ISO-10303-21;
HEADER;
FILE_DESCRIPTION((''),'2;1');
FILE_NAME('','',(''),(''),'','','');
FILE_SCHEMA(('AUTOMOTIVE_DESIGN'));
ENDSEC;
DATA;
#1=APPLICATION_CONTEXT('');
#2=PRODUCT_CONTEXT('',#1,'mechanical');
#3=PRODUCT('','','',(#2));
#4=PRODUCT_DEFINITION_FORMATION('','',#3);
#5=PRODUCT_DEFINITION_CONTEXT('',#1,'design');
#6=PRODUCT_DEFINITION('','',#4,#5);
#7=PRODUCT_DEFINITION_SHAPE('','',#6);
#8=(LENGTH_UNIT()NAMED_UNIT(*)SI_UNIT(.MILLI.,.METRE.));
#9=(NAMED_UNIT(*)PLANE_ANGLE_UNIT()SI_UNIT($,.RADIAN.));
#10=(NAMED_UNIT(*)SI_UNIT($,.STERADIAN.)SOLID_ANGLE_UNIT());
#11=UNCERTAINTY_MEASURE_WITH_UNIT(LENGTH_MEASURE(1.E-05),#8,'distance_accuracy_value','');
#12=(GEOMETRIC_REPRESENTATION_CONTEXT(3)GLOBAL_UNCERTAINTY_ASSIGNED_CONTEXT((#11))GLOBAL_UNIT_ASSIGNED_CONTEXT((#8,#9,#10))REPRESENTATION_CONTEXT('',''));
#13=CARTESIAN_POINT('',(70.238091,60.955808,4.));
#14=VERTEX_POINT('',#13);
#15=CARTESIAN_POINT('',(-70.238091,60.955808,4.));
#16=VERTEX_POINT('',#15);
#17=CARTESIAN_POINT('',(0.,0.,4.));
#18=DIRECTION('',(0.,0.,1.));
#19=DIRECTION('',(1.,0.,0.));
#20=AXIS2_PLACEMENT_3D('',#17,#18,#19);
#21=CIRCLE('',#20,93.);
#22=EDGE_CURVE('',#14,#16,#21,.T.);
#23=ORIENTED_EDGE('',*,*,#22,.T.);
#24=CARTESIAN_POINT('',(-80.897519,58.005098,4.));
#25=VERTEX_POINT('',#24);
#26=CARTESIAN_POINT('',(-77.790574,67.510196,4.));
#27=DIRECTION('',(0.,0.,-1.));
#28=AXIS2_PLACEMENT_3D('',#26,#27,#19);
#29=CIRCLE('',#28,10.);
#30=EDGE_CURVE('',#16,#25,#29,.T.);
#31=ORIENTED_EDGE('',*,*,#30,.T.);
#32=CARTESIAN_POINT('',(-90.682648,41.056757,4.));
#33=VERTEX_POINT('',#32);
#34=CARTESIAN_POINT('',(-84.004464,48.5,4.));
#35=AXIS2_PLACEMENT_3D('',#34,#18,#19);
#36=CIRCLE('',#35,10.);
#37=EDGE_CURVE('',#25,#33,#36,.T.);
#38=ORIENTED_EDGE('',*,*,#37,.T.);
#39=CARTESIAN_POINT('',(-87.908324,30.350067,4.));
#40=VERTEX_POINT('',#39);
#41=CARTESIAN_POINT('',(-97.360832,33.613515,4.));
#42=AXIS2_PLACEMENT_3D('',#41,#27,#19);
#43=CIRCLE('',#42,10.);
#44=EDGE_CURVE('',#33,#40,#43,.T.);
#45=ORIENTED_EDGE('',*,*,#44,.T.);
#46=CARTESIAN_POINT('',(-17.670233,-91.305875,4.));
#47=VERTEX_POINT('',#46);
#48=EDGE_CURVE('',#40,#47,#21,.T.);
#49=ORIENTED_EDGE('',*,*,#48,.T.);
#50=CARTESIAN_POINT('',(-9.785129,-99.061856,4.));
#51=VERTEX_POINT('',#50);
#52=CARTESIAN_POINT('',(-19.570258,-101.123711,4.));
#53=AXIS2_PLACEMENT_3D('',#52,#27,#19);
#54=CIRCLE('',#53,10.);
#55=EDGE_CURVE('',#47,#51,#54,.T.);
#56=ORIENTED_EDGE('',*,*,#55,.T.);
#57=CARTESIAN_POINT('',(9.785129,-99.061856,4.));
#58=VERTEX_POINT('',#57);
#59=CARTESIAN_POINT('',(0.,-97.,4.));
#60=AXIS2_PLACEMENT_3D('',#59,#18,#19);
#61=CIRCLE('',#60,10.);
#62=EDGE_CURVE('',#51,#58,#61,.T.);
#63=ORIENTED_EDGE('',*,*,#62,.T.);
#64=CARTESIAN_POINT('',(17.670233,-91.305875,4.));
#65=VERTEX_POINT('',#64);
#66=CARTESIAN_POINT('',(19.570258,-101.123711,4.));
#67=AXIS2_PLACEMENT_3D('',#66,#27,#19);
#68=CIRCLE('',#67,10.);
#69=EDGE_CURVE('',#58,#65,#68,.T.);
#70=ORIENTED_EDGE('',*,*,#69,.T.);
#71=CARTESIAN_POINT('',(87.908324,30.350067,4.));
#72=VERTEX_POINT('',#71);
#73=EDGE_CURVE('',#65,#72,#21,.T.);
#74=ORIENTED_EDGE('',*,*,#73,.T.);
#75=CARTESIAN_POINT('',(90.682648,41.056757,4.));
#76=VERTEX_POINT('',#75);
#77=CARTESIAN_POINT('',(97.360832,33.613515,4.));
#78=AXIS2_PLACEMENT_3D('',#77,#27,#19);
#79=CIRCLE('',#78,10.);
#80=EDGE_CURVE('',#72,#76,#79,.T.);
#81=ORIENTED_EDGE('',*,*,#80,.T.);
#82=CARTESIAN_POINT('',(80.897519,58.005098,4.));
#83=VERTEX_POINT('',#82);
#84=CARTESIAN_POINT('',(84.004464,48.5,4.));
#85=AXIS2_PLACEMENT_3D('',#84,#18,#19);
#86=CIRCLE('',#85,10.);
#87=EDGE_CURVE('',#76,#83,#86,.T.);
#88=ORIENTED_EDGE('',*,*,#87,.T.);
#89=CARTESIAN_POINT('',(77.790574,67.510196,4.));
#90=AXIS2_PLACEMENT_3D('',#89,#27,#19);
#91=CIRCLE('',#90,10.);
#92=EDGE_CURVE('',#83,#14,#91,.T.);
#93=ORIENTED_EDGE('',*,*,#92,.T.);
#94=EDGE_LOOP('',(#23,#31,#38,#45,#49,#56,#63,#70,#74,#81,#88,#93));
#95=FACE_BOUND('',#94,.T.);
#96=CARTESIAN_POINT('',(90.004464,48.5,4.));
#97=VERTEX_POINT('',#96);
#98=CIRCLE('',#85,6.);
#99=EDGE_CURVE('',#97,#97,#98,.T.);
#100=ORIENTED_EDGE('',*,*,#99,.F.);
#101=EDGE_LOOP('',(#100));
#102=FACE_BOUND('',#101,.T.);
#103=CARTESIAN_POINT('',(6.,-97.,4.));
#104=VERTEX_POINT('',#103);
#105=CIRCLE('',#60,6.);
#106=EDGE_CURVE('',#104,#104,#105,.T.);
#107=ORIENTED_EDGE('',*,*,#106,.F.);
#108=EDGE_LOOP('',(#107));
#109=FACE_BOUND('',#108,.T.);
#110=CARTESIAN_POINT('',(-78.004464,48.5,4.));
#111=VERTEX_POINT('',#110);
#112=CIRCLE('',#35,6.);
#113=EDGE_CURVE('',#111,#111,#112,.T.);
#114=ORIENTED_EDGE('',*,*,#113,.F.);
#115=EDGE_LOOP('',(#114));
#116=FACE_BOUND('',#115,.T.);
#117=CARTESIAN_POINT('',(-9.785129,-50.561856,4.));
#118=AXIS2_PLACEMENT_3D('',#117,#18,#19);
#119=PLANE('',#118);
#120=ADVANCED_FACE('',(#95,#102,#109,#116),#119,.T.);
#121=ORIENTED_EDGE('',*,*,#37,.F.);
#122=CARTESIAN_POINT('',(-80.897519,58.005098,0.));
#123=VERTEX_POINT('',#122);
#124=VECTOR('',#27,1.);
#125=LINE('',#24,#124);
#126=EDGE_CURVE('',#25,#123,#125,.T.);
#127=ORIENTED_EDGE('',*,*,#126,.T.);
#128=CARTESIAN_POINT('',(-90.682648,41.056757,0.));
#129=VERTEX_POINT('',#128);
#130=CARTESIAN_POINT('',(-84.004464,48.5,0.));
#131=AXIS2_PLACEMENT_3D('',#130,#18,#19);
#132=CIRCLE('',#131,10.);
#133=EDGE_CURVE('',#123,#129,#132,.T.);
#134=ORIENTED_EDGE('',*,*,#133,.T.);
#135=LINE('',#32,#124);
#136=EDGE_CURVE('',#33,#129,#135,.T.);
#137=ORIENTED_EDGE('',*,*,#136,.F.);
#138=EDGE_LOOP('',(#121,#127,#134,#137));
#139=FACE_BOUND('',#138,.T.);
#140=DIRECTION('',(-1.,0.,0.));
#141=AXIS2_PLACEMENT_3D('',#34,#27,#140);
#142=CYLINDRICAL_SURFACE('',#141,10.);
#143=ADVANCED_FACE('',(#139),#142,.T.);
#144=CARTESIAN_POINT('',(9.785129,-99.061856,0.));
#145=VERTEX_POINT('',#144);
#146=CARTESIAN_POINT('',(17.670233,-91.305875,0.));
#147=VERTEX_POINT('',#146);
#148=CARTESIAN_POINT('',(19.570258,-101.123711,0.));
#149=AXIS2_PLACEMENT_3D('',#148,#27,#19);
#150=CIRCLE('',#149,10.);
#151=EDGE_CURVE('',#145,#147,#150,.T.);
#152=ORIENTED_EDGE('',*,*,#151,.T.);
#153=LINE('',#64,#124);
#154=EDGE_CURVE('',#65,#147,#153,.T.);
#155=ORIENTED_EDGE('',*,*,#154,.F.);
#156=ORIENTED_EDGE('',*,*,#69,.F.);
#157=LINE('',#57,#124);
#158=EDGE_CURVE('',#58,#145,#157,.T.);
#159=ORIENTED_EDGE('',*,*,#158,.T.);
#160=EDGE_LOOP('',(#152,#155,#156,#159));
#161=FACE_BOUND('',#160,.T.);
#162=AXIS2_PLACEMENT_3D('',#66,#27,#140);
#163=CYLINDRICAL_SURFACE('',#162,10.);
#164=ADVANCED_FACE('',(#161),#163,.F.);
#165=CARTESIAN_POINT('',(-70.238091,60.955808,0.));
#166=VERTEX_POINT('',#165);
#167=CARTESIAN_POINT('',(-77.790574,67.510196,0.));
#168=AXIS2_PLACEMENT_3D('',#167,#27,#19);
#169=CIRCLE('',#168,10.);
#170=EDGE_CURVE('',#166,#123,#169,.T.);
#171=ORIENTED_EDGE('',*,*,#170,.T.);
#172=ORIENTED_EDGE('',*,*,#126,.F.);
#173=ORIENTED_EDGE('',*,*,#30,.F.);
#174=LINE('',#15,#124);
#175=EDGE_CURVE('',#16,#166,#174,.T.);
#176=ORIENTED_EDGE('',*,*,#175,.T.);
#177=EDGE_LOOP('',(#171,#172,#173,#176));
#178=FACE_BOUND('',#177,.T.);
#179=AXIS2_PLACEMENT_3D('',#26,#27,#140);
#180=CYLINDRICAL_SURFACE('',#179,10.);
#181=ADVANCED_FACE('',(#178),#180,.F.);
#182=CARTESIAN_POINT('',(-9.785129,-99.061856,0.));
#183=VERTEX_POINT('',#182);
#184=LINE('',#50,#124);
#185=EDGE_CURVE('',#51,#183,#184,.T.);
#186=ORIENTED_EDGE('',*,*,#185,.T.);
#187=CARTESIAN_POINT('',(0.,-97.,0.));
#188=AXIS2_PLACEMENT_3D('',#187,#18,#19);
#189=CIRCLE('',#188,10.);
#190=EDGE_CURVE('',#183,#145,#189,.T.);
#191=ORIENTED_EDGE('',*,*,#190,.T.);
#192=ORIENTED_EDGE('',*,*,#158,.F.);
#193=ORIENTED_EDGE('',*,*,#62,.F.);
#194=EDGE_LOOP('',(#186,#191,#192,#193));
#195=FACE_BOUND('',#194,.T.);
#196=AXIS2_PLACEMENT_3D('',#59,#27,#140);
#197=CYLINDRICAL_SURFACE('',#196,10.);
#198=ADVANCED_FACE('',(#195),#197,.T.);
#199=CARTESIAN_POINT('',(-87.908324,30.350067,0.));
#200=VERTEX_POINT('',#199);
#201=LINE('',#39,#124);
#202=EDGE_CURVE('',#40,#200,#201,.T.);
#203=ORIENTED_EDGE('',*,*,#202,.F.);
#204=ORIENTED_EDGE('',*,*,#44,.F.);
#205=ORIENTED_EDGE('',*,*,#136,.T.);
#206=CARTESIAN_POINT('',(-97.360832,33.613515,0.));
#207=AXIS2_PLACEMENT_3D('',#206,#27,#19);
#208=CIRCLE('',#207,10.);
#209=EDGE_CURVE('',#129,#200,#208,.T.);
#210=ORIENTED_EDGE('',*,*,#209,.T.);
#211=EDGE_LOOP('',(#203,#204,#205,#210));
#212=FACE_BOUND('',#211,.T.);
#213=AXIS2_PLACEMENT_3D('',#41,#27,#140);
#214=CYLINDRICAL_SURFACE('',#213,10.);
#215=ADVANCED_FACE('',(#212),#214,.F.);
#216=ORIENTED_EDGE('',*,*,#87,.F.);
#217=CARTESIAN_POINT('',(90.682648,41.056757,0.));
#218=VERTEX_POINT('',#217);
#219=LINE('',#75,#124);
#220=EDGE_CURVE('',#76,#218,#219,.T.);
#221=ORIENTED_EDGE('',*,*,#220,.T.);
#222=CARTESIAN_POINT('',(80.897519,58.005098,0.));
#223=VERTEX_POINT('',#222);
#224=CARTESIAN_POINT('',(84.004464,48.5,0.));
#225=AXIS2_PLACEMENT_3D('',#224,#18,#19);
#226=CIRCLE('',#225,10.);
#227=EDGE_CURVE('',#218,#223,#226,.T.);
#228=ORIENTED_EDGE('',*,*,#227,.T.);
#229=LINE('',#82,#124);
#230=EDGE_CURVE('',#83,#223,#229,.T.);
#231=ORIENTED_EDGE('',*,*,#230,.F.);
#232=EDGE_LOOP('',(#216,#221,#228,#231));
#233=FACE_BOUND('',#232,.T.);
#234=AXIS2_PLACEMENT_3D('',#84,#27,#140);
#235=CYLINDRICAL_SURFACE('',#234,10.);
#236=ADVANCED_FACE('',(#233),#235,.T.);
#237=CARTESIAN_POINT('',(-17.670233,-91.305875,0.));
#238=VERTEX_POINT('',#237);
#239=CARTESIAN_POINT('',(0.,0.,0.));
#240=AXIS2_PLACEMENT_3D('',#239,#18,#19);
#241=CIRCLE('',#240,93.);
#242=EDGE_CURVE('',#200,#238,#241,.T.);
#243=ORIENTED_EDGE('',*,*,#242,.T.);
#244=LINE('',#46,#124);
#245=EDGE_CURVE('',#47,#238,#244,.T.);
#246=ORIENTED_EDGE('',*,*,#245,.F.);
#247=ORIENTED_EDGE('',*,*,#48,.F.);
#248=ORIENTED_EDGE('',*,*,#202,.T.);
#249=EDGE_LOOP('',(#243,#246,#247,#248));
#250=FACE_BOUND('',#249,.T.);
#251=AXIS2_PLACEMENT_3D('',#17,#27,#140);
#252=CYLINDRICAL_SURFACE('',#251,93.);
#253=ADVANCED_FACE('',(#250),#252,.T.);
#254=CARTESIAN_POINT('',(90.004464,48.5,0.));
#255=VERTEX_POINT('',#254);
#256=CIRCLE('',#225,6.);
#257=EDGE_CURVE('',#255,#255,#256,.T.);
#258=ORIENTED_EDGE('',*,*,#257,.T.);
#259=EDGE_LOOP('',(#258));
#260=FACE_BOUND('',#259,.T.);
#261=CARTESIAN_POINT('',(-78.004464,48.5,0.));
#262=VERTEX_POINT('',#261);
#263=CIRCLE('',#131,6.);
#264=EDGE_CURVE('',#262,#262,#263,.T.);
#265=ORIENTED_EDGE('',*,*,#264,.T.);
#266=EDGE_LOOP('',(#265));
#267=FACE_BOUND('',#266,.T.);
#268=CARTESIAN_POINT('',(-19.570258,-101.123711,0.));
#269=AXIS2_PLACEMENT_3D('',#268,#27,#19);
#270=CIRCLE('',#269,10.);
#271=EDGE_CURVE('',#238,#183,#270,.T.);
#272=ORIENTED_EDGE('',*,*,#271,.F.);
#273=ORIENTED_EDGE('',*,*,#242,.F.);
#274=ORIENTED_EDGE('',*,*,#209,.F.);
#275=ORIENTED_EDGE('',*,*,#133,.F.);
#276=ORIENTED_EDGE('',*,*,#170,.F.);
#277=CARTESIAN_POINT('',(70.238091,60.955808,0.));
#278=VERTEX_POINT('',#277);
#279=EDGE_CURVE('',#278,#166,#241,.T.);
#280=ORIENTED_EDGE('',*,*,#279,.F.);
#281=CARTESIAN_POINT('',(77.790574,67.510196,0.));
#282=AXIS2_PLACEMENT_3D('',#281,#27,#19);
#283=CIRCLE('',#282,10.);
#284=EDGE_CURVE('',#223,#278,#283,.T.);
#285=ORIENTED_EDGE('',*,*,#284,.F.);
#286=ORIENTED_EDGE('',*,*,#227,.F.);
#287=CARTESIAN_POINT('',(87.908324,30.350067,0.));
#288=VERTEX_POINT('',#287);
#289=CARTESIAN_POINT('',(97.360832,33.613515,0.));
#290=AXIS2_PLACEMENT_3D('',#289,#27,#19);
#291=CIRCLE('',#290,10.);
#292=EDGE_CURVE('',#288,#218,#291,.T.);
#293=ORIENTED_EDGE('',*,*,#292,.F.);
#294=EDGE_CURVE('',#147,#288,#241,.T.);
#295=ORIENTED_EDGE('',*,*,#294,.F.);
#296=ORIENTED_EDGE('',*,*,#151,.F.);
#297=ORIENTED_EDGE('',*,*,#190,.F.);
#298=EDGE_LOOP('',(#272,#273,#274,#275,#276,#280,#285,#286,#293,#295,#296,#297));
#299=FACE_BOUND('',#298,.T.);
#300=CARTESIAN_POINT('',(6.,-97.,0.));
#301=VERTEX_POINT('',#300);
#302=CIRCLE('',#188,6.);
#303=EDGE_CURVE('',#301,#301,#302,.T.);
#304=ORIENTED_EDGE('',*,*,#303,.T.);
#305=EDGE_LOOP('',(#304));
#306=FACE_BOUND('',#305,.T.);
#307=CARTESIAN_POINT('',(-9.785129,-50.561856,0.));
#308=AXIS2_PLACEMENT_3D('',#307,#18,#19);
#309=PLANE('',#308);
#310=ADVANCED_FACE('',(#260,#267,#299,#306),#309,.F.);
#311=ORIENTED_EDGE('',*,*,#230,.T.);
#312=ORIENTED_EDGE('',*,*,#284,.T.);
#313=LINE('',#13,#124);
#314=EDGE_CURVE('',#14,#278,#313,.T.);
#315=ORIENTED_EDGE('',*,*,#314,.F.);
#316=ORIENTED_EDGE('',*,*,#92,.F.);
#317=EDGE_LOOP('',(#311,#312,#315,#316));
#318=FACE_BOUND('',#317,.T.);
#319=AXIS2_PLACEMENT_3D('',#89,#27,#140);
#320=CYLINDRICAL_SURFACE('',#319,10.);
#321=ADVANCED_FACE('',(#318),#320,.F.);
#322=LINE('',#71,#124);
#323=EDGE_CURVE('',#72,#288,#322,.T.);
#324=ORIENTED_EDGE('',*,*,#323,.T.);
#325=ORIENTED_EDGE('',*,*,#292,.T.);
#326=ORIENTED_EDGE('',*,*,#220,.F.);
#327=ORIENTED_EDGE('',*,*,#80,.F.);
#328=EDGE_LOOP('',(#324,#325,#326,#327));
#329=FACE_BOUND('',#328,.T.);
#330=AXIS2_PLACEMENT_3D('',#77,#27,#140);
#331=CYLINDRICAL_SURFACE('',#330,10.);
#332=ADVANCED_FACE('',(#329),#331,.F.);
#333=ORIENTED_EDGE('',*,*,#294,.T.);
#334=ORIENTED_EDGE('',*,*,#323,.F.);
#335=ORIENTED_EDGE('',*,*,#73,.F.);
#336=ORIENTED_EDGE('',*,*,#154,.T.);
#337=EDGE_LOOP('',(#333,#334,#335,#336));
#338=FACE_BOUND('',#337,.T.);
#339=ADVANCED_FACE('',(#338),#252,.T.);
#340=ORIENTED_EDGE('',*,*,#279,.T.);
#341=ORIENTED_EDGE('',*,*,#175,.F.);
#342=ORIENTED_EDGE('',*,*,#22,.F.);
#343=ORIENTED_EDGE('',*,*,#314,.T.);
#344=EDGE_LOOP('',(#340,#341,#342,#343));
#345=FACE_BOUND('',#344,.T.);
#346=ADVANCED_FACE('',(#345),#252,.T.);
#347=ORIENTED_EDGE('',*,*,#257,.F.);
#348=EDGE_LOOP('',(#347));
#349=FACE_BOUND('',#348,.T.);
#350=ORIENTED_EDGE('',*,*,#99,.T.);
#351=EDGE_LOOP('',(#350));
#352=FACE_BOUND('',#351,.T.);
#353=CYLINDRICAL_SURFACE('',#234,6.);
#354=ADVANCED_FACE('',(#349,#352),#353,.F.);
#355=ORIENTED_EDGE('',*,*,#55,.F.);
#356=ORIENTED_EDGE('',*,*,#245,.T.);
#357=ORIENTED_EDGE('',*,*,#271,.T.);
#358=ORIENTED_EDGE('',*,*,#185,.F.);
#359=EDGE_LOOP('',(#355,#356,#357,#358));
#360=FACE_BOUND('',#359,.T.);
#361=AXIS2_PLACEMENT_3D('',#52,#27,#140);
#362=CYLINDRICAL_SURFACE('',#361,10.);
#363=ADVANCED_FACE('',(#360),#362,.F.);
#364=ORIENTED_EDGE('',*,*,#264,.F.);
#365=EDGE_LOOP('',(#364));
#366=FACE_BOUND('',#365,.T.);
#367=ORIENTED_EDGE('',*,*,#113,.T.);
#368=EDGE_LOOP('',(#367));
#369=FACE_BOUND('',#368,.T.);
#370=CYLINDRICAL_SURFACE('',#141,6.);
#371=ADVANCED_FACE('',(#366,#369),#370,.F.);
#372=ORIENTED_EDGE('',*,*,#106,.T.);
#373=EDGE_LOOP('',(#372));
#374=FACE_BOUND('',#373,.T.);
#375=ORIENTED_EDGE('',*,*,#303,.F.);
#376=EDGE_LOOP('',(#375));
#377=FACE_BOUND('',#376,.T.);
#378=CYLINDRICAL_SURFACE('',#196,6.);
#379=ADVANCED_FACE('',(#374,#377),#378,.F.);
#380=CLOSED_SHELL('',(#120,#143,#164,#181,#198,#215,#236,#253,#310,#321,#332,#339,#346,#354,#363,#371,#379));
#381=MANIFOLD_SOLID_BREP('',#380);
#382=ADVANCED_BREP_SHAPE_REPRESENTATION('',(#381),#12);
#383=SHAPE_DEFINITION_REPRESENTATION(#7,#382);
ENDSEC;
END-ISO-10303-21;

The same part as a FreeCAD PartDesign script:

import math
import FreeCAD as App
import Part
import Sketcher
from FreeCAD import Vector

doc = App.newDocument("Part")
body = doc.addObject("PartDesign::Body", "Body")

sketch1 = doc.addObject("Sketcher::SketchObject", "Sketch")
body.addObject(sketch1)
sketch1.AttachmentSupport = (doc.XY_Plane, [""])
sketch1.MapMode = "FlatFace"
sketch1.addGeometry(Part.ArcOfCircle(Part.Circle(Vector(0, 0, 0), Vector(0, 0, 1), 93), math.radians(-79), math.radians(19)), False)
sketch1.addGeometry(Part.ArcOfCircle(Part.Circle(Vector(97, 34, 0), Vector(0, 0, 1), 10), math.radians(132), math.radians(199)), False)
sketch1.addGeometry(Part.ArcOfCircle(Part.Circle(Vector(84, 48, 0), Vector(0, 0, 1), 10), math.radians(-48), math.radians(108)), False)
sketch1.addGeometry(Part.ArcOfCircle(Part.Circle(Vector(78, 68, 0), Vector(0, 0, 1), 10), math.radians(-139), math.radians(-72)), False)
sketch1.addGeometry(Part.ArcOfCircle(Part.Circle(Vector(0, 0, 0), Vector(0, 0, 1), 93), math.radians(41), math.radians(139)), False)
sketch1.addGeometry(Part.ArcOfCircle(Part.Circle(Vector(-78, 68, 0), Vector(0, 0, 1), 10), math.radians(-108), math.radians(-41)), False)
sketch1.addGeometry(Part.ArcOfCircle(Part.Circle(Vector(-84, 48, 0), Vector(0, 0, 1), 10), math.radians(72), math.radians(228)), False)
sketch1.addGeometry(Part.ArcOfCircle(Part.Circle(Vector(-97, 34, 0), Vector(0, 0, 1), 10), math.radians(-19), math.radians(48)), False)
sketch1.addGeometry(Part.ArcOfCircle(Part.Circle(Vector(0, 0, 0), Vector(0, 0, 1), 93), math.radians(161), math.radians(259)), False)
sketch1.addGeometry(Part.ArcOfCircle(Part.Circle(Vector(-20, -101, 0), Vector(0, 0, 1), 10), math.radians(12), math.radians(79)), False)
sketch1.addGeometry(Part.ArcOfCircle(Part.Circle(Vector(0, -97, 0), Vector(0, 0, 1), 10), math.radians(-168), math.radians(-12)), False)
sketch1.addGeometry(Part.ArcOfCircle(Part.Circle(Vector(20, -101, 0), Vector(0, 0, 1), 10), math.radians(101), math.radians(168)), False)
sketch1.addGeometry(Part.Circle(Vector(0, -97, 0), Vector(0, 0, 1), 6), False)
sketch1.addGeometry(Part.Circle(Vector(-84, 48, 0), Vector(0, 0, 1), 6), False)
sketch1.addGeometry(Part.Circle(Vector(84, 48, 0), Vector(0, 0, 1), 6), False)
sketch1.addConstraint(Sketcher.Constraint("Tangent", 0, 2, 1, 2))
sketch1.addConstraint(Sketcher.Constraint("Tangent", 1, 1, 2, 1))
sketch1.addConstraint(Sketcher.Constraint("Tangent", 2, 2, 3, 2))
sketch1.addConstraint(Sketcher.Constraint("Tangent", 3, 1, 4, 1))
sketch1.addConstraint(Sketcher.Constraint("Tangent", 4, 2, 5, 2))
sketch1.addConstraint(Sketcher.Constraint("Tangent", 5, 1, 6, 1))
sketch1.addConstraint(Sketcher.Constraint("Tangent", 6, 2, 7, 2))
sketch1.addConstraint(Sketcher.Constraint("Tangent", 7, 1, 8, 1))
sketch1.addConstraint(Sketcher.Constraint("Tangent", 8, 2, 9, 2))
sketch1.addConstraint(Sketcher.Constraint("Tangent", 9, 1, 10, 1))
sketch1.addConstraint(Sketcher.Constraint("Tangent", 10, 2, 11, 2))
sketch1.addConstraint(Sketcher.Constraint("Tangent", 11, 1, 0, 1))
sketch1.addConstraint(Sketcher.Constraint("Coincident", 0, 3, -1, 1))
sketch1.addConstraint(Sketcher.Constraint("Coincident", 4, 3, -1, 1))
sketch1.addConstraint(Sketcher.Constraint("Coincident", 8, 3, -1, 1))
sketch1.addConstraint(Sketcher.Constraint("Coincident", 12, 3, 10, 3))
sketch1.addConstraint(Sketcher.Constraint("Coincident", 13, 3, 6, 3))
sketch1.addConstraint(Sketcher.Constraint("Coincident", 14, 3, 2, 3))
sketch1.addConstraint(Sketcher.Constraint("Equal", 1, 2))
sketch1.addConstraint(Sketcher.Constraint("Equal", 2, 3))
sketch1.addConstraint(Sketcher.Constraint("Equal", 0, 4))
sketch1.addConstraint(Sketcher.Constraint("Equal", 3, 5))
sketch1.addConstraint(Sketcher.Constraint("Equal", 5, 6))
sketch1.addConstraint(Sketcher.Constraint("Equal", 6, 7))
sketch1.addConstraint(Sketcher.Constraint("Equal", 4, 8))
sketch1.addConstraint(Sketcher.Constraint("Equal", 7, 9))
sketch1.addConstraint(Sketcher.Constraint("Equal", 9, 10))
sketch1.addConstraint(Sketcher.Constraint("Equal", 10, 11))
sketch1.addConstraint(Sketcher.Constraint("Equal", 12, 13))
sketch1.addConstraint(Sketcher.Constraint("Equal", 13, 14))
sketch1.addConstraint(Sketcher.Constraint("Symmetric", 2, 3, 6, 3, -2))
sketch1.addConstraint(Sketcher.Constraint("PointOnObject", 10, 3, -2))
sketch1.addConstraint(Sketcher.Constraint("Diameter", 12, 12.0))
sketch1.addConstraint(Sketcher.Constraint("Radius", 0, 93.0))
sketch1.addConstraint(Sketcher.Constraint("Radius", 1, 10.0))
sketch1.addConstraint(Sketcher.Constraint("DistanceY", 10, 3, -1, 1, 97.0))
sketch1.addConstraint(Sketcher.Constraint("DistanceY", -1, 1, 2, 3, 48.5))
sketch1.addConstraint(Sketcher.Constraint("DistanceY", -1, 1, 2, 2, 58.005098))
pad1 = doc.addObject("PartDesign::Pad", "Pad")
body.addObject(pad1)
pad1.Profile = sketch1
pad1.Length = 4

doc.recompute()
